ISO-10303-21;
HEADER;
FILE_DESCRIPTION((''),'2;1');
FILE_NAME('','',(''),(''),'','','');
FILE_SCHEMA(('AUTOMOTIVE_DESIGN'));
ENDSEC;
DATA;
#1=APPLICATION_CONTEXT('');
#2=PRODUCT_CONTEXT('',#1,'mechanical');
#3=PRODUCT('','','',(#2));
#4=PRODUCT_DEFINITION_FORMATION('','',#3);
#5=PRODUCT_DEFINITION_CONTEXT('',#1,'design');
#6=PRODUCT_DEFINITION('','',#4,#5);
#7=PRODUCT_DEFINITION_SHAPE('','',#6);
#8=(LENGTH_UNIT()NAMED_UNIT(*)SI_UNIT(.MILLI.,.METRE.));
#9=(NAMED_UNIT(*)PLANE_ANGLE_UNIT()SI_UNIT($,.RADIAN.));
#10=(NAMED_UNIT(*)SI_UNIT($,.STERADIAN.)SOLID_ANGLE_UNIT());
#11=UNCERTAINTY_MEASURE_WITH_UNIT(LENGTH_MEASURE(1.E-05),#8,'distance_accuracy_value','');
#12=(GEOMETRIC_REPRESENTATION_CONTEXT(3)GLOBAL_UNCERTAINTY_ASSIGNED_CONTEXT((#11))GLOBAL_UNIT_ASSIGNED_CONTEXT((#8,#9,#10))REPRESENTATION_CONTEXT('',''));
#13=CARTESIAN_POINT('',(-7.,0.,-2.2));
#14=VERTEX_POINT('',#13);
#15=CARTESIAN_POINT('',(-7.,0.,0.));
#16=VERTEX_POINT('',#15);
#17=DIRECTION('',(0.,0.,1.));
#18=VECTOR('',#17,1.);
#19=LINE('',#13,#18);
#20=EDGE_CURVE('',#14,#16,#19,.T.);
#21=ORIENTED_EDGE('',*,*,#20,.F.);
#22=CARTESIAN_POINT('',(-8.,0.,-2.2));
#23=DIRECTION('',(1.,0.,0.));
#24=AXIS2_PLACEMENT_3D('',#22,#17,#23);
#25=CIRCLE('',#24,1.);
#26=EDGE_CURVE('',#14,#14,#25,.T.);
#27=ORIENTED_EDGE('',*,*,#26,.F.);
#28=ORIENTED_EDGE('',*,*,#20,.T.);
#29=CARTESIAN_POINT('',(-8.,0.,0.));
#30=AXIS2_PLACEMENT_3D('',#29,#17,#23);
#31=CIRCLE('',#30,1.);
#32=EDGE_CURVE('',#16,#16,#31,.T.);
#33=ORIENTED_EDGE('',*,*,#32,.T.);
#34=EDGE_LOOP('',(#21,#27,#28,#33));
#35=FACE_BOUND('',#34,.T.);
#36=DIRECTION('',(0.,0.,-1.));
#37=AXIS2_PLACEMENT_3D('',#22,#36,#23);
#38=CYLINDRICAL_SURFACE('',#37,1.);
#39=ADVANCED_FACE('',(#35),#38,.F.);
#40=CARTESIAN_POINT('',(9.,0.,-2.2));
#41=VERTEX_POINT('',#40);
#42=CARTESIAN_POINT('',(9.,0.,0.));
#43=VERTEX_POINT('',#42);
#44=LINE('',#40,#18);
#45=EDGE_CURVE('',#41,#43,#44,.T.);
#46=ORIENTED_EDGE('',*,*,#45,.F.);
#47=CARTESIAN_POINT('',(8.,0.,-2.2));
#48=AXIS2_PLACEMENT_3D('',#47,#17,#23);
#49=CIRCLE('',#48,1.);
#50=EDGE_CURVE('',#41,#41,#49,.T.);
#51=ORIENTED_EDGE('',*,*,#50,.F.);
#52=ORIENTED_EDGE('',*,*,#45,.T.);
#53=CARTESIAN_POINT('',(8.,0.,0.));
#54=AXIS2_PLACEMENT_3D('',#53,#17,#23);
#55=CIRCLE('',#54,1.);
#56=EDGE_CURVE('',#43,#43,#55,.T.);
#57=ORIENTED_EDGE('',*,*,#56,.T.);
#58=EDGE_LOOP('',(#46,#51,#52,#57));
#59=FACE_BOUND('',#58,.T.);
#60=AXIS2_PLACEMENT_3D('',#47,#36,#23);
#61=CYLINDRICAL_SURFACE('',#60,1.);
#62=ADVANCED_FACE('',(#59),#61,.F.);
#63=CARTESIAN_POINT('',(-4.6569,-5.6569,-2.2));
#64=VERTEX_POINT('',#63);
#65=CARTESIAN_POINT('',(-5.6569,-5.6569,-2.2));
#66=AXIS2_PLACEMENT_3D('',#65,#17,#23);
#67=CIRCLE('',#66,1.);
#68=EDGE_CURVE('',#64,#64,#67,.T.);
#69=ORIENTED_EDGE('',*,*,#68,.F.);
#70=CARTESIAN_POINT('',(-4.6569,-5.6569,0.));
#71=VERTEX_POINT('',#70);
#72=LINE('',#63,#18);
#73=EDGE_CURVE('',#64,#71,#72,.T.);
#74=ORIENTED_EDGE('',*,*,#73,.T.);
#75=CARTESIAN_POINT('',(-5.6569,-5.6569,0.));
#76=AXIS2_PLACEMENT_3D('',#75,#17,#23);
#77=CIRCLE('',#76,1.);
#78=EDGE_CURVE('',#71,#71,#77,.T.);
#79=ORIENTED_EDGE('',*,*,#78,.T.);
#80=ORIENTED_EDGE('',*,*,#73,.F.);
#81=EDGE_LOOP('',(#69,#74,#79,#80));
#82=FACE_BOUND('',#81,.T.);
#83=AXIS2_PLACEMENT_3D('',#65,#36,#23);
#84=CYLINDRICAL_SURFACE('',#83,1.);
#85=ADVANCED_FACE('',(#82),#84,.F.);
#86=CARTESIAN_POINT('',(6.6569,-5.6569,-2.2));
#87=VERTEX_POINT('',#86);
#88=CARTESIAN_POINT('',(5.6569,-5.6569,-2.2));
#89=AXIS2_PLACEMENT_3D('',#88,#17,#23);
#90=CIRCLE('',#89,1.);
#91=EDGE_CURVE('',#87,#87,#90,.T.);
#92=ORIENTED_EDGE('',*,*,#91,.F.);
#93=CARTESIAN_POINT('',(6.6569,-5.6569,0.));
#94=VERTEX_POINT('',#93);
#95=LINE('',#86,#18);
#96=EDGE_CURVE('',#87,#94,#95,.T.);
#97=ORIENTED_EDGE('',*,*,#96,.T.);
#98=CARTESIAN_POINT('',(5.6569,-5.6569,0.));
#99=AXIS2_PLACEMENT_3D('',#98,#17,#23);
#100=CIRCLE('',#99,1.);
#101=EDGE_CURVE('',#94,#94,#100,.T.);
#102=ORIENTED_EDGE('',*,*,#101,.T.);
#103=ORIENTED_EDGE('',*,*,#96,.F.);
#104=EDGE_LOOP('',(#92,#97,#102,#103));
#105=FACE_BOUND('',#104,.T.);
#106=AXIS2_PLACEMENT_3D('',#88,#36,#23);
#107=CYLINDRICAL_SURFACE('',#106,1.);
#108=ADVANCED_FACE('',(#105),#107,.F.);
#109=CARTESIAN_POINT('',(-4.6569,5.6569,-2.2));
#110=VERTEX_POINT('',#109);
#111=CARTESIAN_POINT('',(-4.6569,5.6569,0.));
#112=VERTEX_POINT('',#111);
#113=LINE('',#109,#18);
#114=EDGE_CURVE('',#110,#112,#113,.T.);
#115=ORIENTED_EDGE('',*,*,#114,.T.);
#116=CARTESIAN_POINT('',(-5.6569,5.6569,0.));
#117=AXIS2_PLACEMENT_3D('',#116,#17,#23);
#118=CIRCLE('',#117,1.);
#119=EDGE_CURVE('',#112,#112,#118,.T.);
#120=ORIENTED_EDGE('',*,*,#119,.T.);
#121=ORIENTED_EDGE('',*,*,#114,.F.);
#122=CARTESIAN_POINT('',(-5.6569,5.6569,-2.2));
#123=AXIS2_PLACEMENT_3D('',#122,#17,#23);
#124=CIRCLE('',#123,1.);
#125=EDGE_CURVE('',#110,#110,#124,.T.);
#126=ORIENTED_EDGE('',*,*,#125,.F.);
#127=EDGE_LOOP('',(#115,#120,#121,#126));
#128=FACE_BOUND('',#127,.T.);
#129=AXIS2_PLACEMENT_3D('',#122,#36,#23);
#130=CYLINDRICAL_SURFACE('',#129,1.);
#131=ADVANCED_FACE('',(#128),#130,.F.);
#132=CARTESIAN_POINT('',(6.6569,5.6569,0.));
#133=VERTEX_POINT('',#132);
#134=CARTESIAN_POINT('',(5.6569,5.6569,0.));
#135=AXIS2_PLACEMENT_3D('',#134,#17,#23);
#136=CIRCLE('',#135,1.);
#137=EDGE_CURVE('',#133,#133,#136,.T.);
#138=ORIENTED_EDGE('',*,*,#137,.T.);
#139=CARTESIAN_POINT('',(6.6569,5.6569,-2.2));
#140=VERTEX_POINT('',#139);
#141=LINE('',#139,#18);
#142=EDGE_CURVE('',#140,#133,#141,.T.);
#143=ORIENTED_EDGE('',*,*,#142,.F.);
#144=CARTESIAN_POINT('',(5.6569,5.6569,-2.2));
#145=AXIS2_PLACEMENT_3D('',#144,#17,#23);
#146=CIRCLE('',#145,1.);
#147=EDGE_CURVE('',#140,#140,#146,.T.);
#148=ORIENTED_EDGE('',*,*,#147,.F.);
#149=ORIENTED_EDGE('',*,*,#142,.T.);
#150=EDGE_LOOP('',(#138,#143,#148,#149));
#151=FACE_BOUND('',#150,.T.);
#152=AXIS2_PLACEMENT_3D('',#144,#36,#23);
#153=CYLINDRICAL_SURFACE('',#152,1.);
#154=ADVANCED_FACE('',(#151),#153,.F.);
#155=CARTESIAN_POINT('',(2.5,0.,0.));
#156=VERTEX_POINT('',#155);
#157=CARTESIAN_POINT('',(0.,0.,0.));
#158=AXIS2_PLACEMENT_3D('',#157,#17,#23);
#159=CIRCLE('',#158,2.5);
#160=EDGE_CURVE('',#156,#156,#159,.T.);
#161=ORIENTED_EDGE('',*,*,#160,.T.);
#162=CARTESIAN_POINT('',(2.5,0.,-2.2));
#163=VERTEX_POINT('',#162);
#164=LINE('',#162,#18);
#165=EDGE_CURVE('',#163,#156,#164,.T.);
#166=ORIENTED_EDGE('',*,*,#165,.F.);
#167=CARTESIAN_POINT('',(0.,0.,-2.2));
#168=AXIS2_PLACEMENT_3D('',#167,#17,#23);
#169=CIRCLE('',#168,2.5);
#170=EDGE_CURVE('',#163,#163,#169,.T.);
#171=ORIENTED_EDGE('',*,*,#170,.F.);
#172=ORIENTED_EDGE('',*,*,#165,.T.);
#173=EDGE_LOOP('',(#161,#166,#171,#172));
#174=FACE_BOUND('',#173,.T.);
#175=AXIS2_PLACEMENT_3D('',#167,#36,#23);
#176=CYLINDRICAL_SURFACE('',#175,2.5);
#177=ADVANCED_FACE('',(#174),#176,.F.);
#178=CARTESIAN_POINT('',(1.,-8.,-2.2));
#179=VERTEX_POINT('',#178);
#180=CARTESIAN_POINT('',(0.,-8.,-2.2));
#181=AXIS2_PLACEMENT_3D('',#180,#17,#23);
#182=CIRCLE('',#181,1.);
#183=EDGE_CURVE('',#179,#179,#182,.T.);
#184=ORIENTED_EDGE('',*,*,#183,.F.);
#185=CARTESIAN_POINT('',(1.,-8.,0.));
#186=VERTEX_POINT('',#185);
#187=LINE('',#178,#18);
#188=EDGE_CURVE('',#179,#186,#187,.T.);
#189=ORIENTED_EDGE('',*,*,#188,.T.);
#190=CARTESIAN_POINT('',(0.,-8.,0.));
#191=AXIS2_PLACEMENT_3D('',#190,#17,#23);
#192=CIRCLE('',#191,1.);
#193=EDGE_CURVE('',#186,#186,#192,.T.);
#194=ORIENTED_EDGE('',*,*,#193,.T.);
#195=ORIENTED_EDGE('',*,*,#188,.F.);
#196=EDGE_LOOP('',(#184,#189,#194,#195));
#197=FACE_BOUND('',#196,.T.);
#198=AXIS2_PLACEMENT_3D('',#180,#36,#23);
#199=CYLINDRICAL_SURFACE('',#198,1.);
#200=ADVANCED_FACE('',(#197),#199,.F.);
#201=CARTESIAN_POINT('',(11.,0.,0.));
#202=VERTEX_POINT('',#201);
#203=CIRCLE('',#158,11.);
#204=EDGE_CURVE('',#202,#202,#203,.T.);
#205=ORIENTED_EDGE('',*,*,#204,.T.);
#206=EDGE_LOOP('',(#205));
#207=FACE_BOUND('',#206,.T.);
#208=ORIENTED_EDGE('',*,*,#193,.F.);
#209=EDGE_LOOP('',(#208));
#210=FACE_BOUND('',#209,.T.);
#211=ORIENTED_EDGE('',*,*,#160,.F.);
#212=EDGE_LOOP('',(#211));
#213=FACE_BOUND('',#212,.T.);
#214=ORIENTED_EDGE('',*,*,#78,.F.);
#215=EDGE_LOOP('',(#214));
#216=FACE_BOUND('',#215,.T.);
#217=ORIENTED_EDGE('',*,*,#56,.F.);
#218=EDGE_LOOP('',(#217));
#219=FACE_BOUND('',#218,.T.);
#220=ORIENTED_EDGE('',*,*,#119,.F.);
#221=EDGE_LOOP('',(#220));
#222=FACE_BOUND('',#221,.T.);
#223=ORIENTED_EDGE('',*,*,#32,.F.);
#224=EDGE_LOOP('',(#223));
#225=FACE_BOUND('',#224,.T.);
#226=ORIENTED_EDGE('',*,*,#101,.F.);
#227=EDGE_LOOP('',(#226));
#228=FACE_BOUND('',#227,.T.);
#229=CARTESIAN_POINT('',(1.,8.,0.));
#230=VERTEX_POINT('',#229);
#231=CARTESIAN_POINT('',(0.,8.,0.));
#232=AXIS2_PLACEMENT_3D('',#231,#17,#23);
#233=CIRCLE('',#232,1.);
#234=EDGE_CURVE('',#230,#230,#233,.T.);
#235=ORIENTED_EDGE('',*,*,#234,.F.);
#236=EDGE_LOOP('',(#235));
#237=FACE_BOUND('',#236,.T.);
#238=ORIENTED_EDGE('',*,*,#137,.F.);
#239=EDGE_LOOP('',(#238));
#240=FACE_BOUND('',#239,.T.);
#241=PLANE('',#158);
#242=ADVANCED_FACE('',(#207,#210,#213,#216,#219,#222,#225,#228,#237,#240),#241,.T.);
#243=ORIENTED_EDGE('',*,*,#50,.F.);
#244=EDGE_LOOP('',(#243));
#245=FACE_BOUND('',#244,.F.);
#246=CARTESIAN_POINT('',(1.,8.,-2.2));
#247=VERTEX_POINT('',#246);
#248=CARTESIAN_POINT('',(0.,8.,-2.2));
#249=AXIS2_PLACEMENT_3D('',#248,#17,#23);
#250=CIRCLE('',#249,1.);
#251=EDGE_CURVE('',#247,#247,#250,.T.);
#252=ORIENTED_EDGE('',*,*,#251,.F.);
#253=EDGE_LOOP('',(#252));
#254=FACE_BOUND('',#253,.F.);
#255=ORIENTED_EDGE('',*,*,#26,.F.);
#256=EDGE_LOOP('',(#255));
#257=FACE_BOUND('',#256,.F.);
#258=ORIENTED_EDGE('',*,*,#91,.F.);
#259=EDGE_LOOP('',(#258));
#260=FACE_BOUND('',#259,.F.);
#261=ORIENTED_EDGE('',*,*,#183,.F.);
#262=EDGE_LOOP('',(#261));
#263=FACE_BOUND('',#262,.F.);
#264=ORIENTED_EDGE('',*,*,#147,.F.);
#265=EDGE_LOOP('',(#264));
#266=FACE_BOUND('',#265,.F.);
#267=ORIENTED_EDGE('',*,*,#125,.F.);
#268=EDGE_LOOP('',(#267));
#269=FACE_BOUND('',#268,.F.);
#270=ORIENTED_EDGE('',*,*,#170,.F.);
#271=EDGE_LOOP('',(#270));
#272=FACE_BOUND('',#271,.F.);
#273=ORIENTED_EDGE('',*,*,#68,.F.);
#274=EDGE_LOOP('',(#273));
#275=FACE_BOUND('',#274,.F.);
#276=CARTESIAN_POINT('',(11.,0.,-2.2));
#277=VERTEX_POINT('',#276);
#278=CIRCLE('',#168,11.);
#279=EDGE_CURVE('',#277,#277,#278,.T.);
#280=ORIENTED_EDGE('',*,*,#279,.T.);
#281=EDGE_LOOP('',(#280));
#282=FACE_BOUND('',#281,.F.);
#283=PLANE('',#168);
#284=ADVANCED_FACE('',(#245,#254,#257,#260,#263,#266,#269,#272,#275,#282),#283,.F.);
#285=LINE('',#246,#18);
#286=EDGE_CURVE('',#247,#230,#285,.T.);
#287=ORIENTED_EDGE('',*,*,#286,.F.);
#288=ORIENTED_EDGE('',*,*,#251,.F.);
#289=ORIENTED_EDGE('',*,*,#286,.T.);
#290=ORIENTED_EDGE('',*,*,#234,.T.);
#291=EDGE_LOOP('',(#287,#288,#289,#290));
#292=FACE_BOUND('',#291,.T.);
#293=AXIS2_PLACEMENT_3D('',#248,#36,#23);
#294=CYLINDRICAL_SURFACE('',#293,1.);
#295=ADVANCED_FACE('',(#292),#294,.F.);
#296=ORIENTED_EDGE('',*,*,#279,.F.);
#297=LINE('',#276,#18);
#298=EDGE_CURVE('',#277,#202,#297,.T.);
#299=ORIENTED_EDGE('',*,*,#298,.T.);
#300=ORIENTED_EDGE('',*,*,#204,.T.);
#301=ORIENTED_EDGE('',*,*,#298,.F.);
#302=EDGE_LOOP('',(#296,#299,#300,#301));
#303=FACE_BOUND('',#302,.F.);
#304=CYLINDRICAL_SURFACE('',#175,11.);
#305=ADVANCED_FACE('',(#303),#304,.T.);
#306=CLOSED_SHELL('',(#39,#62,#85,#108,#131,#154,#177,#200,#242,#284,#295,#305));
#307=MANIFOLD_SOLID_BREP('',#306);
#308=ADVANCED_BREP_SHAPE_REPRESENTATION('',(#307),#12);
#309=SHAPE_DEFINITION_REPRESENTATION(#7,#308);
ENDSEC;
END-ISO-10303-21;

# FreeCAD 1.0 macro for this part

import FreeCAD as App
import Part
import Sketcher
from FreeCAD import Vector
Q = App.Units.Quantity

doc = App.newDocument("Part")
body = doc.addObject("PartDesign::Body", "Body")

# Sketch on XY plane
sketch1 = doc.addObject("Sketcher::SketchObject", "Sketch")
body.addObject(sketch1)
sketch1.AttachmentSupport = (doc.XY_Plane, [""])
sketch1.MapMode = "FlatFace"
sketch1.AttachmentOffset = App.Placement(Vector(0, 0, -2.2), App.Rotation())
sketch1.addGeometry([
    Part.Circle(Vector(0, 0, 0), Vector(0, 0, 1), 11),  # 0
    Part.Circle(Vector(-5.7, -5.7, 0), Vector(0, 0, 1), 1),  # 1
    Part.Circle(Vector(0, -8, 0), Vector(0, 0, 1), 1),  # 2
    Part.Circle(Vector(5.7, -5.7, 0), Vector(0, 0, 1), 1),  # 3
    Part.Circle(Vector(-8, 0, 0), Vector(0, 0, 1), 1),  # 4
    Part.Circle(Vector(-5.7, 5.7, 0), Vector(0, 0, 1), 1),  # 5
    Part.Circle(Vector(0, 0, 0), Vector(0, 0, 1), 2.5),  # 6
    Part.Circle(Vector(8, 0, 0), Vector(0, 0, 1), 1),  # 7
    Part.Circle(Vector(0, 8, 0), Vector(0, 0, 1), 1),  # 8
    Part.Circle(Vector(5.7, 5.7, 0), Vector(0, 0, 1), 1),  # 9
], False)
sketch1.addConstraint([
    Sketcher.Constraint("Coincident", 0, 3, -1, 1),
    Sketcher.Constraint("Coincident", 6, 3, -1, 1),
    Sketcher.Constraint("Equal", 1, 2),
    Sketcher.Constraint("Equal", 2, 3),
    Sketcher.Constraint("Equal", 3, 4),
    Sketcher.Constraint("Equal", 4, 5),
    Sketcher.Constraint("Equal", 5, 7),
    Sketcher.Constraint("Equal", 7, 8),
    Sketcher.Constraint("Equal", 8, 9),
    Sketcher.Constraint("Symmetric", 3, 3, 5, 3, -1, 1),
    Sketcher.Constraint("Symmetric", 4, 3, 7, 3, -1, 1),
    Sketcher.Constraint("Symmetric", 2, 3, 8, 3, -1, 1),
    Sketcher.Constraint("Symmetric", 1, 3, 9, 3, -1, 1),
    Sketcher.Constraint("Symmetric", 1, 3, 3, 3, -2),
    Sketcher.Constraint("PointOnObject", 2, 3, -2),
    Sketcher.Constraint("PointOnObject", 4, 3, -1),
    Sketcher.Constraint("Diameter", 0, Q("22 mm")),
    Sketcher.Constraint("Diameter", 1, Q("2 mm")),
    Sketcher.Constraint("Diameter", 6, Q("5 mm")),
    Sketcher.Constraint("DistanceY", 2, 3, -1, 1, Q("8 mm")),
    Sketcher.Constraint("DistanceX", 4, 3, -1, 1, Q("8 mm")),
    Sketcher.Constraint("DistanceX", 1, 3, -1, 1, Q("5.657 mm")),
    Sketcher.Constraint("DistanceY", 1, 3, -1, 1, Q("5.657 mm")),
])
pad1 = doc.addObject("PartDesign::Pad", "Pad")
body.addObject(pad1)
pad1.Profile = sketch1
pad1.Length = 2.2

doc.recompute()
